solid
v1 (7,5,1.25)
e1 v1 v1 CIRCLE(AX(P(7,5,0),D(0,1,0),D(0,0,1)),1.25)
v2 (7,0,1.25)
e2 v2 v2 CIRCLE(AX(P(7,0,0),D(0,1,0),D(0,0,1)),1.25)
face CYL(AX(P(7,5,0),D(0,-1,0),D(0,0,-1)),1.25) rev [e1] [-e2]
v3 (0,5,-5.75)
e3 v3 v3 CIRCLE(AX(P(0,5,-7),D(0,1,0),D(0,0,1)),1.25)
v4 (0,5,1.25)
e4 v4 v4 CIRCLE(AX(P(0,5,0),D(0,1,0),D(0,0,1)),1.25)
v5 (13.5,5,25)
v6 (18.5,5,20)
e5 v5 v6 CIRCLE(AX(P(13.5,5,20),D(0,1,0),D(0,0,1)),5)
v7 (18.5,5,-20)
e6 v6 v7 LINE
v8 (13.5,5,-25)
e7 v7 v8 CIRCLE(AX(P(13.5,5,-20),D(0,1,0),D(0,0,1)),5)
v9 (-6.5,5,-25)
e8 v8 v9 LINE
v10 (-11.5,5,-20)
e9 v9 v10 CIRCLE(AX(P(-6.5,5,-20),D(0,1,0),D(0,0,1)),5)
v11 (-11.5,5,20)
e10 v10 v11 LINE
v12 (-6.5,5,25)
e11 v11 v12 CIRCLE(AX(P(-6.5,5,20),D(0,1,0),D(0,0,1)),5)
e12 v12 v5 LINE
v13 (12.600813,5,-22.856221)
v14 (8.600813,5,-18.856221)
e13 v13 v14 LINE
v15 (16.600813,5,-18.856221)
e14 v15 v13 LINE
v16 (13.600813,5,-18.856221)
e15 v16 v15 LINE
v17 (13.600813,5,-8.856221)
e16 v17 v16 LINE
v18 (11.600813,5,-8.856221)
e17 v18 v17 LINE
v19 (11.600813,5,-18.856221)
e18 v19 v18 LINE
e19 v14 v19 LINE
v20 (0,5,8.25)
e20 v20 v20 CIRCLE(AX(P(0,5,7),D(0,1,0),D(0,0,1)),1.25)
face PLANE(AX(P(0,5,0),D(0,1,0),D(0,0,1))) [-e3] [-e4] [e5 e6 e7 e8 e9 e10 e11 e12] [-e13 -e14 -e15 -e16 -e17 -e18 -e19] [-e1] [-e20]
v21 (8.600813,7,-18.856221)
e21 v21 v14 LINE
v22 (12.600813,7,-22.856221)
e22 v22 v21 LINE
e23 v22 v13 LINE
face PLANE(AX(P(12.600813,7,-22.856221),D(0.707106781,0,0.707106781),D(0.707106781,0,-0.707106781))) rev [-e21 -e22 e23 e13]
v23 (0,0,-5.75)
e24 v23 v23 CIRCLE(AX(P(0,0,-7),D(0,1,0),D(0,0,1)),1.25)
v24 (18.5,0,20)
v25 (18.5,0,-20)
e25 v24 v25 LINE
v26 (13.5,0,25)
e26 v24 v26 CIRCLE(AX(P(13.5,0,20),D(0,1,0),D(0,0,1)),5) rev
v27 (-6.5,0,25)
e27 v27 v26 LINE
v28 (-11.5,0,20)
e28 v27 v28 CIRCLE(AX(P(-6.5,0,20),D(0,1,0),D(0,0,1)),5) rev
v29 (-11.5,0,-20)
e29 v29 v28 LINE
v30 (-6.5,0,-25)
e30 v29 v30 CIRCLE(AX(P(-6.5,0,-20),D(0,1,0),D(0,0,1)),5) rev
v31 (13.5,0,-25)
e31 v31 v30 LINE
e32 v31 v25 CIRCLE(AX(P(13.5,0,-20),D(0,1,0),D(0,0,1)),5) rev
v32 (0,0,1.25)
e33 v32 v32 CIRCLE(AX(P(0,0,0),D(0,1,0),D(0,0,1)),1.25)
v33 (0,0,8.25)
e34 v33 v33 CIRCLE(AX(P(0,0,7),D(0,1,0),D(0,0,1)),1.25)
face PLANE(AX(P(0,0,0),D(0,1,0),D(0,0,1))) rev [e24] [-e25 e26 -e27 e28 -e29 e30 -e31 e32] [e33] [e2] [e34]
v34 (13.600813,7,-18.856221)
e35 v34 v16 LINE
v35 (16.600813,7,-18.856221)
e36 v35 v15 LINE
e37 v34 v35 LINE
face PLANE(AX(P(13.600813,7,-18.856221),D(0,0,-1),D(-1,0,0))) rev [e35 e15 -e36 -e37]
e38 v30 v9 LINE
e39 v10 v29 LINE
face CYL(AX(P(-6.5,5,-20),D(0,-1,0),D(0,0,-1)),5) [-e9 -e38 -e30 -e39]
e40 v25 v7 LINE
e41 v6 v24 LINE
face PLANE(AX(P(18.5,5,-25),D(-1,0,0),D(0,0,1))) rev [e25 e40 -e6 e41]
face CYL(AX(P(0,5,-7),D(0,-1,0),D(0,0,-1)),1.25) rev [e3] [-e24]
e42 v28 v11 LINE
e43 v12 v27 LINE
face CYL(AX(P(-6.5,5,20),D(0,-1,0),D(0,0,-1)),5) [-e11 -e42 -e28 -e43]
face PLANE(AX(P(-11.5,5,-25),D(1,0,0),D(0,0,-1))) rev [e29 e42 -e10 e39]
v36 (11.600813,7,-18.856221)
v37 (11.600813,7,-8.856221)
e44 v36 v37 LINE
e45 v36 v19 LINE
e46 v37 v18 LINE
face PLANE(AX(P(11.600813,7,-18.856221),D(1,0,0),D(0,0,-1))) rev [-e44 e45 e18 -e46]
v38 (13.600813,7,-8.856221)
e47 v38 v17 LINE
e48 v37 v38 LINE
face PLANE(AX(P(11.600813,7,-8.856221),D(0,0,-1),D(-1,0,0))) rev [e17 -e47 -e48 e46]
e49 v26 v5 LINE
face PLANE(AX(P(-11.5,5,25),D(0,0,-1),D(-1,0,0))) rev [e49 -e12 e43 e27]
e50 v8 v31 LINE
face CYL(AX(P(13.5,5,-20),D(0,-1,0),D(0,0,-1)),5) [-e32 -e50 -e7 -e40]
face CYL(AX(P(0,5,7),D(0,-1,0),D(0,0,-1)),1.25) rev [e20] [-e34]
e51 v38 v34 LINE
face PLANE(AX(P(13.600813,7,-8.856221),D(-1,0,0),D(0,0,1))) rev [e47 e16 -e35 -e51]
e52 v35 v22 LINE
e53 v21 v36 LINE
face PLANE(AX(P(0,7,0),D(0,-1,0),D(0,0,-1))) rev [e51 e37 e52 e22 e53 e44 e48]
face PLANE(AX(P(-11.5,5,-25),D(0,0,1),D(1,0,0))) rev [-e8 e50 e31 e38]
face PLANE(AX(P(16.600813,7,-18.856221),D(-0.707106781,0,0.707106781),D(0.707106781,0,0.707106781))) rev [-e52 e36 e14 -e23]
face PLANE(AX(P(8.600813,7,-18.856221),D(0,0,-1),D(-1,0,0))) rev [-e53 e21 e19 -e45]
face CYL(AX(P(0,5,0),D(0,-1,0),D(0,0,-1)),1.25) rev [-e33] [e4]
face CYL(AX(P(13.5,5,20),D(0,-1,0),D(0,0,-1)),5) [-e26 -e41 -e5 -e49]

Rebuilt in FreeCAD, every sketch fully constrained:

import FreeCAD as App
import Part
import Sketcher

V = App.Vector
Q = App.Units.Quantity


def edges_at(feature, points):
    """Names of the edges that pass closest to the given points."""
    edges = feature.Shape.Edges
    near = lambda p: min(range(len(edges)), key=lambda i: edges[i].distToShape(Part.Vertex(*p))[0])
    return sorted({f"Edge{near(p) + 1}" for p in points})


def add_polygon(sketch, points):
    """Adds a closed chain of lines whose ends are joined by coincident constraints."""
    first, n = sketch.GeometryCount, len(points)
    for a, b in zip(points, points[1:] + points[:1]):
        sketch.addGeometry(Part.LineSegment(App.Vector(*a, 0), App.Vector(*b, 0)), False)
    for i in range(n):
        sketch.addConstraint(Sketcher.Constraint("Coincident", first + i, 2, first + (i + 1) % n, 1))

doc = App.newDocument("Part")
params = doc.addObject("Spreadsheet::Sheet", "Params")
for row, (alias, value) in enumerate([
    ("sketch1_diameter", "2.5 mm"),
    ("sketch1_width", "30 mm"),
    ("sketch1_height", "50 mm"),
    ("pad1_length", "5 mm"),
    ("fillet_radius", "5 mm"),
    ("sketch2_width", "2 mm"),
    ("sketch2_width2", "3 mm"),
    ("sketch2_height", "10 mm"),
    ("pad2_length", "2 mm"),
], start=1):
    params.set(f"A{row}", alias)
    params.set(f"B{row}", "=" + value)
    params.setAlias(f"B{row}", alias)

body = doc.addObject("PartDesign::Body", "Body")

sketch1 = body.newObject("Sketcher::SketchObject", "Sketch")
sketch1.AttachmentSupport = (doc.getObject("XZ_Plane"), [""])
sketch1.MapMode = "FlatFace"
add_polygon(sketch1, [(-11.5, -25), (-11.5, 25), (18.5, 25), (18.5, -25)])
sketch1.addGeometry(Part.Circle(V(0, 7, 0), V(0, 0, 1), 1.2), False)
sketch1.addGeometry(Part.Circle(V(0, 0, 0), V(0, 0, 1), 1.2), False)
sketch1.addGeometry(Part.Circle(V(0, -7, 0), V(0, 0, 1), 1.2), False)
sketch1.addGeometry(Part.Circle(V(7, 0, 0), V(0, 0, 1), 1.2), False)
sketch1.addConstraint(Sketcher.Constraint("Vertical", 0))
sketch1.addConstraint(Sketcher.Constraint("Horizontal", 1))
sketch1.addConstraint(Sketcher.Constraint("Vertical", 2))
sketch1.addConstraint(Sketcher.Constraint("Horizontal", 3))
sketch1.addConstraint(Sketcher.Constraint("Coincident", 5, 3, -1, 1))
sketch1.addConstraint(Sketcher.Constraint("Equal", 4, 5))
sketch1.addConstraint(Sketcher.Constraint("Equal", 5, 6))
sketch1.addConstraint(Sketcher.Constraint("Equal", 6, 7))
sketch1.addConstraint(Sketcher.Constraint("Symmetric", 4, 3, 6, 3, -1, 1))
sketch1.addConstraint(Sketcher.Constraint("PointOnObject", 4, 3, -2))
sketch1.addConstraint(Sketcher.Constraint("PointOnObject", 7, 3, -1))
sketch1.addConstraint(Sketcher.Constraint("Diameter", 4, Q("2.5 mm")))
sketch1.addConstraint(Sketcher.Constraint("DistanceX", 1, 1, 1, 2, Q("30 mm")))
sketch1.addConstraint(Sketcher.Constraint("DistanceY", 0, 1, 0, 2, Q("50 mm")))
sketch1.addConstraint(Sketcher.Constraint("DistanceY", -1, 1, 4, 3, Q("7 mm")))
sketch1.addConstraint(Sketcher.Constraint("DistanceX", -1, 1, 7, 3, Q("7 mm")))
sketch1.addConstraint(Sketcher.Constraint("DistanceY", -1, 1, 0, 2, Q("25 mm")))
sketch1.addConstraint(Sketcher.Constraint("DistanceX", 0, 2, -1, 1, Q("11.5 mm")))
sketch1.setExpression("Constraints[15]", "Params.sketch1_diameter")
sketch1.setExpression("Constraints[16]", "Params.sketch1_width")
sketch1.setExpression("Constraints[17]", "Params.sketch1_height")
pad1 = body.newObject("PartDesign::Pad", "Pad")
pad1.Profile = sketch1
pad1.setExpression("Length", "Params.pad1_length")
pad1.Reversed = True
doc.recompute()

fillet = body.newObject("PartDesign::Fillet", "Fillet")
fillet.Base = (pad1, edges_at(pad1, [
    (-11.5, 2.5, -25),
    (18.5, 2.5, -25),
    (18.5, 2.5, 25),
    (-11.5, 2.5, 25),
]))
fillet.setExpression("Radius", "Params.fillet_radius")

sketch2 = body.newObject("Sketcher::SketchObject", "Sketch001")
sketch2.AttachmentSupport = (doc.getObject("XZ_Plane"), [""])
sketch2.MapMode = "FlatFace"
sketch2.AttachmentOffset = App.Placement(V(0, 0, -5), App.Rotation())
add_polygon(sketch2, [(11.6, -18.9), (11.6, -8.9), (13.6, -8.9), (13.6, -18.9), (16.6, -18.9), (12.6, -22.9), (8.6, -18.9)])
sketch2.addConstraint(Sketcher.Constraint("Vertical", 0))
sketch2.addConstraint(Sketcher.Constraint("Horizontal", 1))
sketch2.addConstraint(Sketcher.Constraint("Vertical", 2))
sketch2.addConstraint(Sketcher.Constraint("Horizontal", 3))
sketch2.addConstraint(Sketcher.Constraint("Horizontal", 6))
sketch2.addConstraint(Sketcher.Constraint("Perpendicular", 4, 5))
sketch2.addConstraint(Sketcher.Constraint("Horizontal", 3, 2, 5, 2))
sketch2.addConstraint(Sketcher.Constraint("Equal", 3, 6))
sketch2.addConstraint(Sketcher.Constraint("Equal", 4, 5))
sketch2.addConstraint(Sketcher.Constraint("DistanceX", 1, 1, 1, 2, Q("2 mm")))
sketch2.addConstraint(Sketcher.Constraint("DistanceX", 3, 1, 3, 2, Q("3 mm")))
sketch2.addConstraint(Sketcher.Constraint("DistanceY", 0, 1, 0, 2, Q("10 mm")))
sketch2.addConstraint(Sketcher.Constraint("DistanceY", 0, 2, -1, 1, Q("8.856221 mm")))
sketch2.addConstraint(Sketcher.Constraint("DistanceX", -1, 1, 0, 2, Q("11.600813 mm")))
sketch2.setExpression("Constraints[16]", "Params.sketch2_width")
sketch2.setExpression("Constraints[17]", "Params.sketch2_width2")
sketch2.setExpression("Constraints[18]", "Params.sketch2_height")
pad2 = body.newObject("PartDesign::Pad", "Pad001")
pad2.Profile = sketch2
pad2.setExpression("Length", "Params.pad2_length")
pad2.Reversed = True

doc.recompute()
